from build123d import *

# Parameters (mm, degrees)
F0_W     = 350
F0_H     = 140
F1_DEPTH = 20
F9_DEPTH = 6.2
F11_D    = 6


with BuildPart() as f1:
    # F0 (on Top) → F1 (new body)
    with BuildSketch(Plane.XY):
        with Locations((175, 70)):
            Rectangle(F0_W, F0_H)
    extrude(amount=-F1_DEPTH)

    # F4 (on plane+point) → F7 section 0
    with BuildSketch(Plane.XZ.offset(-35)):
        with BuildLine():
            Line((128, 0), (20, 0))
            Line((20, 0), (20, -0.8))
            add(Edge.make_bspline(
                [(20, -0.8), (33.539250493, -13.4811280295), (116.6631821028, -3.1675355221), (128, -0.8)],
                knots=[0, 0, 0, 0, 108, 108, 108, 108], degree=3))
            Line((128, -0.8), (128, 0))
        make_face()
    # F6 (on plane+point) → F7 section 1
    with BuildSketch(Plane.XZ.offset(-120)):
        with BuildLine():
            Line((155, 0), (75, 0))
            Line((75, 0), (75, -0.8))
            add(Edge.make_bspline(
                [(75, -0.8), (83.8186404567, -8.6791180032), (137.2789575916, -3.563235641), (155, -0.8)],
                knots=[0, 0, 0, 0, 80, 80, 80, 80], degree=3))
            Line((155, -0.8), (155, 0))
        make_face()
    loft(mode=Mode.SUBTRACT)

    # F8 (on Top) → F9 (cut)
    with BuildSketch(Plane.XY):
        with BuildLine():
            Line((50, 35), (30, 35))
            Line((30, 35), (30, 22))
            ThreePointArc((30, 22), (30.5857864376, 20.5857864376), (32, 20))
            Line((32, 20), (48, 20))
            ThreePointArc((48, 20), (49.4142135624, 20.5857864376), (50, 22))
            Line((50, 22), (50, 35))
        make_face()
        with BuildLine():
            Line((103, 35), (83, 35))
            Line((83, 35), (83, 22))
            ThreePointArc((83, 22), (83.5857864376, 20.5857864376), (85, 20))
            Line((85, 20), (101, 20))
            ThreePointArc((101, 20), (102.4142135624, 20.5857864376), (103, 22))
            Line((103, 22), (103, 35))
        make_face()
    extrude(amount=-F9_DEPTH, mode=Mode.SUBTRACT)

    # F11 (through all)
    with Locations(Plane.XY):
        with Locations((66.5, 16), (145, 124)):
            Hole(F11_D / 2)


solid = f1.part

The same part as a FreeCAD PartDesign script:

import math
import FreeCAD as App
import Part
import Sketcher
from FreeCAD import Vector


def add_polygon(sketch, points):
    """Adds a closed chain of lines whose ends are joined by coincident constraints."""
    first, n = sketch.GeometryCount, len(points)
    for a, b in zip(points, points[1:] + points[:1]):
        sketch.addGeometry(Part.LineSegment(App.Vector(*a, 0), App.Vector(*b, 0)), False)
    for i in range(n):
        sketch.addConstraint(Sketcher.Constraint("Coincident", first + i, 2, first + (i + 1) % n, 1))

doc = App.newDocument("Part")
body = doc.addObject("PartDesign::Body", "Body")

sketch1 = doc.addObject("Sketcher::SketchObject", "Sketch")
body.addObject(sketch1)
sketch1.AttachmentSupport = (doc.XY_Plane, [""])
sketch1.MapMode = "FlatFace"
add_polygon(sketch1, [(0, 140), (0, 0), (350, 0), (350, 140)])
sketch1.addConstraint(Sketcher.Constraint("Vertical", 0))
sketch1.addConstraint(Sketcher.Constraint("Horizontal", 1))
sketch1.addConstraint(Sketcher.Constraint("Vertical", 2))
sketch1.addConstraint(Sketcher.Constraint("Horizontal", 3))
sketch1.addConstraint(Sketcher.Constraint("Coincident", 0, 2, -1, 1))
sketch1.addConstraint(Sketcher.Constraint("DistanceX", 1, 1, 1, 2, 350.0))
sketch1.addConstraint(Sketcher.Constraint("DistanceY", 0, 2, 0, 1, 140.0))
pad1 = doc.addObject("PartDesign::Pad", "Pad")
body.addObject(pad1)
pad1.Profile = sketch1
pad1.Length = 20
pad1.Reversed = True

sketch2 = doc.addObject("Sketcher::SketchObject", "Sketch001")
body.addObject(sketch2)
sketch2.AttachmentSupport = (doc.XZ_Plane, [""])
sketch2.MapMode = "FlatFace"
sketch2.AttachmentOffset = App.Placement(Vector(0, 0, -35), App.Rotation())
sketch2.addGeometry(Part.LineSegment(Vector(128, 0, 0), Vector(20, 0, 0)), False)
sketch2.addGeometry(Part.LineSegment(Vector(20, 0, 0), Vector(20, -0.8, 0)), False)
sketch2.addGeometry(Part.BSplineCurve([Vector(20, -0.8, 0), Vector(33.53925, -13.481128, 0), Vector(116.663182, -3.167536, 0), Vector(128, -0.8, 0)], [4, 4], [0, 108], False, 3, [1, 1, 1, 1], False), False)
sketch2.addGeometry(Part.LineSegment(Vector(128, -0.8, 0), Vector(128, 0, 0)), False)
sketch2.addConstraint(Sketcher.Constraint("Block", 2))
sketch2.addConstraint(Sketcher.Constraint("Coincident", 0, 2, 1, 1))
sketch2.addConstraint(Sketcher.Constraint("Coincident", 1, 2, 2, 1))
sketch2.addConstraint(Sketcher.Constraint("Coincident", 2, 2, 3, 1))
sketch2.addConstraint(Sketcher.Constraint("Coincident", 3, 2, 0, 1))
sketch2.addConstraint(Sketcher.Constraint("Horizontal", 0))
sketch2.addConstraint(Sketcher.Constraint("Vertical", 1))
sketch2.addConstraint(Sketcher.Constraint("Vertical", 3))
sketch2.addConstraint(Sketcher.Constraint("PointOnObject", 0, 2, -1))

sketch3 = doc.addObject("Sketcher::SketchObject", "Sketch002")
body.addObject(sketch3)
sketch3.AttachmentSupport = (doc.XZ_Plane, [""])
sketch3.MapMode = "FlatFace"
sketch3.AttachmentOffset = App.Placement(Vector(0, 0, -120), App.Rotation())
sketch3.addGeometry(Part.LineSegment(Vector(155, 0, 0), Vector(75, 0, 0)), False)
sketch3.addGeometry(Part.LineSegment(Vector(75, 0, 0), Vector(75, -0.8, 0)), False)
sketch3.addGeometry(Part.BSplineCurve([Vector(75, -0.8, 0), Vector(83.81864, -8.679118, 0), Vector(137.278958, -3.563236, 0), Vector(155, -0.8, 0)], [4, 4], [0, 80], False, 3, [1, 1, 1, 1], False), False)
sketch3.addGeometry(Part.LineSegment(Vector(155, -0.8, 0), Vector(155, 0, 0)), False)
sketch3.addConstraint(Sketcher.Constraint("Block", 2))
sketch3.addConstraint(Sketcher.Constraint("Coincident", 0, 2, 1, 1))
sketch3.addConstraint(Sketcher.Constraint("Coincident", 1, 2, 2, 1))
sketch3.addConstraint(Sketcher.Constraint("Coincident", 2, 2, 3, 1))
sketch3.addConstraint(Sketcher.Constraint("Coincident", 3, 2, 0, 1))
sketch3.addConstraint(Sketcher.Constraint("Horizontal", 0))
sketch3.addConstraint(Sketcher.Constraint("Vertical", 1))
sketch3.addConstraint(Sketcher.Constraint("Vertical", 3))
sketch3.addConstraint(Sketcher.Constraint("PointOnObject", 0, 2, -1))

subtractiveloft = doc.addObject("PartDesign::SubtractiveLoft", "SubtractiveLoft")
body.addObject(subtractiveloft)
subtractiveloft.Profile = sketch2
subtractiveloft.Sections = [sketch3]

sketch4 = doc.addObject("Sketcher::SketchObject", "Sketch003")
body.addObject(sketch4)
sketch4.AttachmentSupport = (doc.XY_Plane, [""])
sketch4.MapMode = "FlatFace"
sketch4.addGeometry(Part.LineSegment(Vector(50, 35, 0), Vector(30, 35, 0)), False)
sketch4.addGeometry(Part.LineSegment(Vector(30, 35, 0), Vector(30, 22, 0)), False)
sketch4.addGeometry(Part.ArcOfCircle(Part.Circle(Vector(32, 22, 0), Vector(0, 0, 1), 2), math.radians(180), math.radians(270)), False)
sketch4.addGeometry(Part.LineSegment(Vector(32, 20, 0), Vector(48, 20, 0)), False)
sketch4.addGeometry(Part.ArcOfCircle(Part.Circle(Vector(48, 22, 0), Vector(0, 0, 1), 2), math.radians(-90), math.radians(0)), False)
sketch4.addGeometry(Part.LineSegment(Vector(50, 22, 0), Vector(50, 35, 0)), False)
sketch4.addGeometry(Part.LineSegment(Vector(103, 35, 0), Vector(83, 35, 0)), False)
sketch4.addGeometry(Part.LineSegment(Vector(83, 35, 0), Vector(83, 22, 0)), False)
sketch4.addGeometry(Part.ArcOfCircle(Part.Circle(Vector(85, 22, 0), Vector(0, 0, 1), 2), math.radians(180), math.radians(270)), False)
sketch4.addGeometry(Part.LineSegment(Vector(85, 20, 0), Vector(101, 20, 0)), False)
sketch4.addGeometry(Part.ArcOfCircle(Part.Circle(Vector(101, 22, 0), Vector(0, 0, 1), 2), math.radians(-90), math.radians(0)), False)
sketch4.addGeometry(Part.LineSegment(Vector(103, 22, 0), Vector(103, 35, 0)), False)
sketch4.addConstraint(Sketcher.Constraint("Coincident", 0, 2, 1, 1))
sketch4.addConstraint(Sketcher.Constraint("Tangent", 1, 2, 2, 1))
sketch4.addConstraint(Sketcher.Constraint("Tangent", 2, 2, 3, 1))
sketch4.addConstraint(Sketcher.Constraint("Tangent", 3, 2, 4, 1))
sketch4.addConstraint(Sketcher.Constraint("Tangent", 4, 2, 5, 1))
sketch4.addConstraint(Sketcher.Constraint("Coincident", 5, 2, 0, 1))
sketch4.addConstraint(Sketcher.Constraint("Coincident", 6, 2, 7, 1))
sketch4.addConstraint(Sketcher.Constraint("Tangent", 7, 2, 8, 1))
sketch4.addConstraint(Sketcher.Constraint("Tangent", 8, 2, 9, 1))
sketch4.addConstraint(Sketcher.Constraint("Tangent", 9, 2, 10, 1))
sketch4.addConstraint(Sketcher.Constraint("Tangent", 10, 2, 11, 1))
sketch4.addConstraint(Sketcher.Constraint("Coincident", 11, 2, 6, 1))
sketch4.addConstraint(Sketcher.Constraint("Horizontal", 0))
sketch4.addConstraint(Sketcher.Constraint("Vertical", 1))
sketch4.addConstraint(Sketcher.Constraint("Horizontal", 3))
sketch4.addConstraint(Sketcher.Constraint("Vertical", 5))
sketch4.addConstraint(Sketcher.Constraint("Horizontal", 6))
sketch4.addConstraint(Sketcher.Constraint("Vertical", 7))
sketch4.addConstraint(Sketcher.Constraint("Horizontal", 9))
sketch4.addConstraint(Sketcher.Constraint("Vertical", 11))
sketch4.addConstraint(Sketcher.Constraint("Equal", 2, 4))
sketch4.addConstraint(Sketcher.Constraint("Equal", 4, 8))
sketch4.addConstraint(Sketcher.Constraint("Equal", 8, 10))
sketch4.addConstraint(Sketcher.Constraint("Horizontal", 4, 3, 8, 3))
sketch4.addConstraint(Sketcher.Constraint("Horizontal", 5, 2, 6, 2))
sketch4.addConstraint(Sketcher.Constraint("Equal", 0, 6))
sketch4.addConstraint(Sketcher.Constraint("Radius", 2, 2.0))
sketch4.addConstraint(Sketcher.Constraint("DistanceX", 0, 2, 0, 1, 20.0))
sketch4.addConstraint(Sketcher.Constraint("DistanceY", 1, 2, 1, 1, 13.0))
sketch4.addConstraint(Sketcher.Constraint("DistanceX", -1, 1, 2, 3, 32.0))
sketch4.addConstraint(Sketcher.Constraint("DistanceY", -1, 1, 2, 3, 22.0))
sketch4.addConstraint(Sketcher.Constraint("DistanceX", -1, 1, 8, 3, 85.0))
pocket1 = doc.addObject("PartDesign::Pocket", "Pocket")
body.addObject(pocket1)
pocket1.Profile = sketch4
pocket1.Length = 6.2

sketch5 = doc.addObject("Sketcher::SketchObject", "Sketch004")
body.addObject(sketch5)
sketch5.AttachmentSupport = (doc.XY_Plane, [""])
sketch5.MapMode = "FlatFace"
sketch5.addGeometry(Part.Circle(Vector(66.5, 16, 0), Vector(0, 0, 1), 3), False)
sketch5.addGeometry(Part.Circle(Vector(145, 124, 0), Vector(0, 0, 1), 3), False)
sketch5.addConstraint(Sketcher.Constraint("Equal", 0, 1))
sketch5.addConstraint(Sketcher.Constraint("Diameter", 0, 6.0))
sketch5.addConstraint(Sketcher.Constraint("DistanceY", -1, 1, 0, 3, 16.0))
sketch5.addConstraint(Sketcher.Constraint("DistanceX", -1, 1, 1, 3, 145.0))
sketch5.addConstraint(Sketcher.Constraint("DistanceY", -1, 1, 1, 3, 124.0))
sketch5.addConstraint(Sketcher.Constraint("DistanceX", -1, 1, 0, 3, 66.5))
doc.recompute()
hole = doc.addObject("PartDesign::Hole", "Hole")
body.addObject(hole)
hole.Profile = sketch5
hole.ThreadType = "None"
hole.Diameter = 6
hole.DepthType = "ThroughAll"

doc.recompute()
